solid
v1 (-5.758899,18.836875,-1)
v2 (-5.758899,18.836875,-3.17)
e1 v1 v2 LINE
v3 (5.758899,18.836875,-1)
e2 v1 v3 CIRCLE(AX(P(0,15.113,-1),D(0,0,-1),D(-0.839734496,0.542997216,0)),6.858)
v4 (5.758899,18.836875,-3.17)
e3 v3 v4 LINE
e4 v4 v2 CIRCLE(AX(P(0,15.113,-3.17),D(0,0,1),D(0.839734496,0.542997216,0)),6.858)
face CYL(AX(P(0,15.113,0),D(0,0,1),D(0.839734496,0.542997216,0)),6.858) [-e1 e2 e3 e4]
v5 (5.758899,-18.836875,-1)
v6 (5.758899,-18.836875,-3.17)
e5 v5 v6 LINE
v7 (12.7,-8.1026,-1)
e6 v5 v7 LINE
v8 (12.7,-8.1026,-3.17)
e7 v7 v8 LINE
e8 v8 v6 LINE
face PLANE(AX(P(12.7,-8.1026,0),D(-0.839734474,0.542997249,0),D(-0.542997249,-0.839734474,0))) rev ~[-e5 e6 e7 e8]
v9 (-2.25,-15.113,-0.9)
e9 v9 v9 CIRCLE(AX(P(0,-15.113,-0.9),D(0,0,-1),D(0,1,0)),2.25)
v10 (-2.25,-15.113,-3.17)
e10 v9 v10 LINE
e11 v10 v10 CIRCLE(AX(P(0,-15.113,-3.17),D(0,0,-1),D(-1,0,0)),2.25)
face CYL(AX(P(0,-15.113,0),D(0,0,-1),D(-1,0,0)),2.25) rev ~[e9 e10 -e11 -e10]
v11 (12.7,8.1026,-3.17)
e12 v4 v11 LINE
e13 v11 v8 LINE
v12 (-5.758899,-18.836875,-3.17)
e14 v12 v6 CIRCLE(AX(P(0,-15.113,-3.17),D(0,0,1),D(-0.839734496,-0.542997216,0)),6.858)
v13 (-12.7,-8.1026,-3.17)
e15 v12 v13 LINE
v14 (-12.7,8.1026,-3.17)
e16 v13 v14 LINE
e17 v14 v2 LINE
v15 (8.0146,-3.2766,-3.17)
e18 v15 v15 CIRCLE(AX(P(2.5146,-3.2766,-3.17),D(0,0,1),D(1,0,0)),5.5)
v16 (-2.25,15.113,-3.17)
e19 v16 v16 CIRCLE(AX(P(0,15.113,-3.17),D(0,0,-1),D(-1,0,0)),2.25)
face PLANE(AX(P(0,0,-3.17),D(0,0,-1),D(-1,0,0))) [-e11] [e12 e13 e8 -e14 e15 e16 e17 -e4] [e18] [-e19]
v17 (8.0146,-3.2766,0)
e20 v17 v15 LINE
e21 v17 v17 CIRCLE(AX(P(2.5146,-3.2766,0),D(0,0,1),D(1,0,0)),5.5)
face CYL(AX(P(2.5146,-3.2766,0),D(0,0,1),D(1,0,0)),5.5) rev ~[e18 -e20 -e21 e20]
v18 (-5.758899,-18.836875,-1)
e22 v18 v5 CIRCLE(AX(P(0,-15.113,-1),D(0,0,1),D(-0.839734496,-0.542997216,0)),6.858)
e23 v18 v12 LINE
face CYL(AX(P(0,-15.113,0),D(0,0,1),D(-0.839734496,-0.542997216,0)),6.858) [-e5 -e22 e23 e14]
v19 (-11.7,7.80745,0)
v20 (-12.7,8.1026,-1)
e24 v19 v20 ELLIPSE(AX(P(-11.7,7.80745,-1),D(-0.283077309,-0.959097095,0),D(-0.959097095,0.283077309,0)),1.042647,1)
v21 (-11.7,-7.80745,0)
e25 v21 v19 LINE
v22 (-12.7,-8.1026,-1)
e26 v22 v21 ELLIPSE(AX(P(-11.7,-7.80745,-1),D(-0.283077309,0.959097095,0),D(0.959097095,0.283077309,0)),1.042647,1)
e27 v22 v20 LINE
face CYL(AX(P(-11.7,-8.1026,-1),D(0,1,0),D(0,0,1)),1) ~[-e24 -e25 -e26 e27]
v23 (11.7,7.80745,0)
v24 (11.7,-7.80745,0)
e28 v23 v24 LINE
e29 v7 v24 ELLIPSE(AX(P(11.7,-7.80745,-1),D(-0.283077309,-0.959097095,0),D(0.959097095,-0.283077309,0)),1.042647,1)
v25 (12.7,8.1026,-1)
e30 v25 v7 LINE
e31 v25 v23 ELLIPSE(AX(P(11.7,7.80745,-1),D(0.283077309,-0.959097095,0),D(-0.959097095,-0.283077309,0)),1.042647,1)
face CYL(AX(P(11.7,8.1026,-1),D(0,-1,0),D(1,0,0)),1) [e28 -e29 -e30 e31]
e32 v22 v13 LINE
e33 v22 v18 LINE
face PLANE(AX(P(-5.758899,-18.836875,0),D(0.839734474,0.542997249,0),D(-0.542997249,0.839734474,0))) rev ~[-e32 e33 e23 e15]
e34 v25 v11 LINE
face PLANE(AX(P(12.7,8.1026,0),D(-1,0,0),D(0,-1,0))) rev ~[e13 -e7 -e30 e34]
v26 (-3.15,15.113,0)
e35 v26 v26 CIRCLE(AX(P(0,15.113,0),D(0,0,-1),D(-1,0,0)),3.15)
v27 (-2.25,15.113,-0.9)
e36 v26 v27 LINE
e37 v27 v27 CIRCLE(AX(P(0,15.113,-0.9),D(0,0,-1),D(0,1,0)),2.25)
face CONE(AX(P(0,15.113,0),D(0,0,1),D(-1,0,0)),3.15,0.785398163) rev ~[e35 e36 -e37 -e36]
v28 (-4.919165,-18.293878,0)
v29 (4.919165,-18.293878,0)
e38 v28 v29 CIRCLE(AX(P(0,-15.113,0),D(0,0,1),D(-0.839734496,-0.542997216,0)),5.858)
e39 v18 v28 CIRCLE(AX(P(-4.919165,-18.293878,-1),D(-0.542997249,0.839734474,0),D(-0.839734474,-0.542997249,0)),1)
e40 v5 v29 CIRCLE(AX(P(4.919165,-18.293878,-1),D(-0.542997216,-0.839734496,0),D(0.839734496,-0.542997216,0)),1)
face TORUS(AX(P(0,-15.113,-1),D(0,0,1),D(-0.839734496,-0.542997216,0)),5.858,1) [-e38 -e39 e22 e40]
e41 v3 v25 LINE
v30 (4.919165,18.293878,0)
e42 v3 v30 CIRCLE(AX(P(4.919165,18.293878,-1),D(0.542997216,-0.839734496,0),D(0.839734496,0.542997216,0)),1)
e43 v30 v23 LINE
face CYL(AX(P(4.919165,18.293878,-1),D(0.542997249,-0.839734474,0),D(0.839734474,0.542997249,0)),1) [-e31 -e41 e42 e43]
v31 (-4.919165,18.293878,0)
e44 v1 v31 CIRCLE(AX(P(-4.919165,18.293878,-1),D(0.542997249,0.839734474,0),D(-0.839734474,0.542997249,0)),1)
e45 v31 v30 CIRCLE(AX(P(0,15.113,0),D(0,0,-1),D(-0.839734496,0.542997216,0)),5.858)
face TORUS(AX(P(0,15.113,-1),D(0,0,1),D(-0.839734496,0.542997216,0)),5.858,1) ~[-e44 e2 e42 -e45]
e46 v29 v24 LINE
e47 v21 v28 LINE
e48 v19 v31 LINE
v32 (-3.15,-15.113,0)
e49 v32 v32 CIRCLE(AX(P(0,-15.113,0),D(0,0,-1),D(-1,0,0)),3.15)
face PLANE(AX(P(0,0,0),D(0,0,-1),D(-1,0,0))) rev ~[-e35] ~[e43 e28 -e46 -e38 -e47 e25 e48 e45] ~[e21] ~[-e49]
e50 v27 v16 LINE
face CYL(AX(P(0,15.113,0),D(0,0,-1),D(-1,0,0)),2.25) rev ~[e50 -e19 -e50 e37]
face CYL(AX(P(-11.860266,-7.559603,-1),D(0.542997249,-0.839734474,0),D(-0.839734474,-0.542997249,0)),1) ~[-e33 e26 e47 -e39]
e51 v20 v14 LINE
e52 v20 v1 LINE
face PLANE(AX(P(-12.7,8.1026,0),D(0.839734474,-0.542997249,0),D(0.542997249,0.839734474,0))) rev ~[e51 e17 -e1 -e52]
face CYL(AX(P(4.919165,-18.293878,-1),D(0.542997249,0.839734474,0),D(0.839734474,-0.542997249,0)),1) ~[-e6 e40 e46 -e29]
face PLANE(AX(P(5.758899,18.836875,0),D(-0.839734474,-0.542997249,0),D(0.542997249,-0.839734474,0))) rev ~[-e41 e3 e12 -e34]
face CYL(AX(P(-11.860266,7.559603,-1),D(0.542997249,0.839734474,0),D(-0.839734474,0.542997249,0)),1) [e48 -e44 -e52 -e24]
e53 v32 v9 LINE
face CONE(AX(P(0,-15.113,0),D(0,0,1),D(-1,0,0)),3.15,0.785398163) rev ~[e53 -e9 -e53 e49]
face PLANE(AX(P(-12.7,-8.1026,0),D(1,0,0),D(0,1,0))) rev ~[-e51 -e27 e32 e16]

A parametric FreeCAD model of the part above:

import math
import FreeCAD as App
import Part
import Sketcher
from FreeCAD import Vector
Q = App.Units.Quantity


def edges_at(feature, points):
    """Names of the edges that pass closest to the given points."""
    edges = feature.Shape.Edges
    near = lambda p: min(range(len(edges)), key=lambda i: edges[i].distToShape(Part.Vertex(*p))[0])
    return sorted({f"Edge{near(p) + 1}" for p in points})

doc = App.newDocument("Part")
body = doc.addObject("PartDesign::Body", "Body")

# Sketch on XY plane
sketch1 = doc.addObject("Sketcher::SketchObject", "Sketch")
body.addObject(sketch1)
sketch1.AttachmentSupport = (doc.XY_Plane, [""])
sketch1.MapMode = "FlatFace"
sketch1.addGeometry(Part.LineSegment(Vector(-5.758899, 18.836875, 0), Vector(-12.7, 8.1026, 0)), False)
sketch1.addGeometry(Part.LineSegment(Vector(-12.7, 8.1026, 0), Vector(-12.7, -8.1026, 0)), False)
sketch1.addGeometry(Part.LineSegment(Vector(-12.7, -8.1026, 0), Vector(-5.758899, -18.836875, 0)), False)
sketch1.addGeometry(Part.ArcOfCircle(Part.Circle(Vector(0, -15.113, 0), Vector(0, 0, 1), 6.858), math.radians(-147.112094), math.radians(-32.887906)), False)
sketch1.addGeometry(Part.LineSegment(Vector(5.758899, -18.836875, 0), Vector(12.7, -8.1026, 0)), False)
sketch1.addGeometry(Part.LineSegment(Vector(12.7, -8.1026, 0), Vector(12.7, 8.1026, 0)), False)
sketch1.addGeometry(Part.LineSegment(Vector(12.7, 8.1026, 0), Vector(5.758899, 18.836875, 0)), False)
sketch1.addGeometry(Part.ArcOfCircle(Part.Circle(Vector(0, 15.113, 0), Vector(0, 0, 1), 6.858), math.radians(32.887906), math.radians(147.112094)), False)
sketch1.addGeometry(Part.Circle(Vector(2.5146, -3.2766, 0), Vector(0, 0, 1), 5.5), False)
sketch1.addConstraint(Sketcher.Constraint("Coincident", 0, 2, 1, 1))
sketch1.addConstraint(Sketcher.Constraint("Coincident", 1, 2, 2, 1))
sketch1.addConstraint(Sketcher.Constraint("Tangent", 2, 2, 3, 1))
sketch1.addConstraint(Sketcher.Constraint("Tangent", 3, 2, 4, 1))
sketch1.addConstraint(Sketcher.Constraint("Coincident", 4, 2, 5, 1))
sketch1.addConstraint(Sketcher.Constraint("Coincident", 5, 2, 6, 1))
sketch1.addConstraint(Sketcher.Constraint("Tangent", 6, 2, 7, 1))
sketch1.addConstraint(Sketcher.Constraint("Tangent", 7, 2, 0, 1))
sketch1.addConstraint(Sketcher.Constraint("Vertical", 1))
sketch1.addConstraint(Sketcher.Constraint("Vertical", 5))
sketch1.addConstraint(Sketcher.Constraint("Equal", 3, 7))
sketch1.addConstraint(Sketcher.Constraint("Symmetric", 3, 3, 7, 3, -1, 1))
sketch1.addConstraint(Sketcher.Constraint("Symmetric", 0, 2, 4, 2, -1, 1))
sketch1.addConstraint(Sketcher.Constraint("Symmetric", 2, 2, 3, 2, -2))
sketch1.addConstraint(Sketcher.Constraint("Parallel", 2, 6))
sketch1.addConstraint(Sketcher.Constraint("Diameter", 8, Q("11 mm")))
sketch1.addConstraint(Sketcher.Constraint("Radius", 3, Q("6.858 mm")))
sketch1.addConstraint(Sketcher.Constraint("DistanceX", 0, 2, -1, 1, Q("12.7 mm")))
sketch1.addConstraint(Sketcher.Constraint("DistanceY", 1, 2, 1, 1, Q("16.2052 mm")))
sketch1.addConstraint(Sketcher.Constraint("DistanceY", 3, 3, -1, 1, Q("15.113 mm")))
sketch1.addConstraint(Sketcher.Constraint("DistanceY", 1, 2, 8, 3, Q("4.826 mm")))
sketch1.addConstraint(Sketcher.Constraint("DistanceX", -1, 1, 8, 3, Q("2.5146 mm")))
pad1 = doc.addObject("PartDesign::Pad", "Pad")
body.addObject(pad1)
pad1.Profile = sketch1
pad1.Length = 3.17
pad1.Reversed = True

# Sketch on XY plane
sketch2 = doc.addObject("Sketcher::SketchObject", "Sketch001")
body.addObject(sketch2)
sketch2.AttachmentSupport = (doc.XY_Plane, [""])
sketch2.MapMode = "FlatFace"
sketch2.addGeometry(Part.Circle(Vector(0, 15.113, 0), Vector(0, 0, 1), 2.25), False)
sketch2.addGeometry(Part.Circle(Vector(0, -15.113, 0), Vector(0, 0, 1), 2.25), False)
sketch2.addConstraint(Sketcher.Constraint("Equal", 0, 1))
sketch2.addConstraint(Sketcher.Constraint("Symmetric", 0, 3, 1, 3, -1, 1))
sketch2.addConstraint(Sketcher.Constraint("PointOnObject", 0, 3, -2))
sketch2.addConstraint(Sketcher.Constraint("Diameter", 0, Q("4.5 mm")))
sketch2.addConstraint(Sketcher.Constraint("DistanceY", -1, 1, 0, 3, Q("15.113 mm")))
doc.recompute()
hole = doc.addObject("PartDesign::Hole", "Hole")
body.addObject(hole)
hole.Profile = sketch2
hole.ThreadType = "None"
hole.Diameter = 4.5
hole.DepthType = "Dimension"
hole.Depth = 25
hole.DrillPoint = "Flat"
hole.HoleCutType = "Countersink"
hole.HoleCutDiameter = 6.3
hole.HoleCutCountersinkAngle = 90
doc.recompute()

fillet = doc.addObject("PartDesign::Fillet", "Fillet")
body.addObject(fillet)
fillet.Base = (hole, edges_at(hole, [
    (0, -21.971, 0),
    (12.7, 0, 0),
    (-12.7, 0, 0),
    (-9.229, 13.47, 0),
]))
fillet.Radius = 1

doc.recompute()
